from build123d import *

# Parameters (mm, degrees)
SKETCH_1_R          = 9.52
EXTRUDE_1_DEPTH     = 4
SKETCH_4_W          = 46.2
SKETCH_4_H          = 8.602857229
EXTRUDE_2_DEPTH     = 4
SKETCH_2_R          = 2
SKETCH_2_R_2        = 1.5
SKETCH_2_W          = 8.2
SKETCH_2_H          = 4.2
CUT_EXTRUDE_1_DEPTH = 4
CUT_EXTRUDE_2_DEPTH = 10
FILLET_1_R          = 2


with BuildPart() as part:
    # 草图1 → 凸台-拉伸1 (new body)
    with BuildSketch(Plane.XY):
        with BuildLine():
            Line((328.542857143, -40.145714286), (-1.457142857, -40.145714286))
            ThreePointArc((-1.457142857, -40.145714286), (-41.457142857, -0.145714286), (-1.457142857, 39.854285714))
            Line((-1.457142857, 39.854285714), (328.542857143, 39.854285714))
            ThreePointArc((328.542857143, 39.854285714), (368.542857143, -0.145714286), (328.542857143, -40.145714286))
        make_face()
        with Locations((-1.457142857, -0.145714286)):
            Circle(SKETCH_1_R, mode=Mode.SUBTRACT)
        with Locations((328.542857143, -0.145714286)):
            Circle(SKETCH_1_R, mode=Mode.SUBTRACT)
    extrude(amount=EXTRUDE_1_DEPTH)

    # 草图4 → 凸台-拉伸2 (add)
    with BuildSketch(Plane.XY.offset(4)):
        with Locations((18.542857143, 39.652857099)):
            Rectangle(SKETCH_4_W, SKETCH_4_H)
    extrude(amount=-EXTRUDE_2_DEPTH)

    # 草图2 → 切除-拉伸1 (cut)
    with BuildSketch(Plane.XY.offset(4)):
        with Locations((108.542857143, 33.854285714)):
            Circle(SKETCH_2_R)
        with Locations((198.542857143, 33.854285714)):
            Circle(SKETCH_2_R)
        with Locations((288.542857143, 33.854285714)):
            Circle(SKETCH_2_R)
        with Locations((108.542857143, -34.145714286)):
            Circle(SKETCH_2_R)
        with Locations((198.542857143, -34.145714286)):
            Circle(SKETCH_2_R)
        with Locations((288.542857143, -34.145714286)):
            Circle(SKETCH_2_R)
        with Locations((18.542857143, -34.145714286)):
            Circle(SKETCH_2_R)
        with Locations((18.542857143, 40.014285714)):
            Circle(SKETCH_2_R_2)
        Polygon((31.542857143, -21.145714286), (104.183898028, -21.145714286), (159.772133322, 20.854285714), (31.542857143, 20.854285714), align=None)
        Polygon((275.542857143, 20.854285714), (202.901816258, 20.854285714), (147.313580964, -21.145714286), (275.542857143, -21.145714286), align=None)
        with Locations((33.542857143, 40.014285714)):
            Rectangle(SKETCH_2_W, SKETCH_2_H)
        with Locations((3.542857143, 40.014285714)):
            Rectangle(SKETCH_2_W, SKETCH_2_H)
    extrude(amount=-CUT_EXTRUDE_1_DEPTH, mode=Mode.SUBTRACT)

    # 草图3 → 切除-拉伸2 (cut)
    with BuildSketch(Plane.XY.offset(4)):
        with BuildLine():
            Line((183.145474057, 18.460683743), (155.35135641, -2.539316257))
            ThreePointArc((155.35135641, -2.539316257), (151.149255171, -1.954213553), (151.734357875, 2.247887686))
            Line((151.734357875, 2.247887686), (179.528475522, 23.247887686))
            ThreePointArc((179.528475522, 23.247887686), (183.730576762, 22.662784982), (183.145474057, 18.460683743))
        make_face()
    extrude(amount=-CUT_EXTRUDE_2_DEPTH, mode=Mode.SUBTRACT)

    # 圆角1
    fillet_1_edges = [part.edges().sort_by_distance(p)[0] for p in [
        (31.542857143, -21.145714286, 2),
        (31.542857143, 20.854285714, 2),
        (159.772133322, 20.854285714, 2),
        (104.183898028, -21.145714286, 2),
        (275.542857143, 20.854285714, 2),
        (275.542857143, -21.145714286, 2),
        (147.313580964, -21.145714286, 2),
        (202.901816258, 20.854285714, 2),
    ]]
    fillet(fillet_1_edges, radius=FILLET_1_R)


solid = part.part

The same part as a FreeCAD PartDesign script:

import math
import FreeCAD as App
import Part
import Sketcher
Q = App.Units.Quantity


def edges_at(feature, points):
    """Names of the edges that pass closest to the given points."""
    edges = feature.Shape.Edges
    near = lambda p: min(range(len(edges)), key=lambda i: edges[i].distToShape(Part.Vertex(*p))[0])
    return sorted({f"Edge{near(p) + 1}" for p in points})

doc = App.newDocument("Part")
body = doc.addObject("PartDesign::Body", "Body")

# Sketch on XY plane
sketch1 = doc.addObject("Sketcher::SketchObject", "Sketch")
body.addObject(sketch1)
sketch1.AttachmentSupport = (doc.XY_Plane, [""])
sketch1.MapMode = "FlatFace"
sketch1.addGeometry([
    Part.LineSegment(App.Vector(-1.457143, -40.145714, 0), App.Vector(328.542857, -40.145714, 0)),  # 0
    Part.ArcOfCircle(Part.Circle(App.Vector(328.542857, -0.145714, 0), App.Vector(0, 0, 1), 40), math.radians(-90), math.radians(90)),  # 1
    Part.LineSegment(App.Vector(328.542857, 39.854286, 0), App.Vector(-1.457143, 39.854286, 0)),  # 2
    Part.ArcOfCircle(Part.Circle(App.Vector(-1.457143, -0.145714, 0), App.Vector(0, 0, 1), 40), math.radians(90), math.radians(270)),  # 3
    Part.Circle(App.Vector(328.542857, -0.145714, 0), App.Vector(0, 0, 1), 9.52),  # 4
    Part.Circle(App.Vector(-1.457143, -0.145714, 0), App.Vector(0, 0, 1), 9.52),  # 5
], False)
sketch1.addConstraint([
    Sketcher.Constraint("Tangent", 0, 2, 1, 1),
    Sketcher.Constraint("Tangent", 1, 2, 2, 1),
    Sketcher.Constraint("Tangent", 2, 2, 3, 1),
    Sketcher.Constraint("Tangent", 3, 2, 0, 1),
    Sketcher.Constraint("Horizontal", 0),
    Sketcher.Constraint("Horizontal", 2),
    Sketcher.Constraint("Coincident", 4, 3, 1, 3),
    Sketcher.Constraint("Coincident", 5, 3, 3, 3),
    Sketcher.Constraint("Equal", 4, 5),
    Sketcher.Constraint("Radius", 1, Q("40 mm")),
    Sketcher.Constraint("Diameter", 4, Q("19.04 mm")),
    Sketcher.Constraint("DistanceX", 0, 1, 0, 2, Q("330 mm")),
    Sketcher.Constraint("DistanceX", -1, 1, 1, 3, Q("328.542857 mm")),
    Sketcher.Constraint("DistanceY", 1, 3, -1, 1, Q("0.145714 mm")),
])
pad1 = doc.addObject("PartDesign::Pad", "Pad")
body.addObject(pad1)
pad1.Profile = sketch1
pad1.Length = 4

# Sketch on XY plane
sketch2 = doc.addObject("Sketcher::SketchObject", "Sketch001")
body.addObject(sketch2)
sketch2.AttachmentSupport = (doc.XY_Plane, [""])
sketch2.MapMode = "FlatFace"
sketch2.AttachmentOffset = App.Placement(App.Vector(0, 0, 4), App.Rotation())
sketch2.addGeometry([
    Part.LineSegment(App.Vector(-4.557143, 43.954286, 0), App.Vector(-4.557143, 35.351428, 0)),
    Part.LineSegment(App.Vector(-4.557143, 35.351428, 0), App.Vector(41.642857, 35.351428, 0)),
    Part.LineSegment(App.Vector(41.642857, 35.351428, 0), App.Vector(41.642857, 43.954286, 0)),
    Part.LineSegment(App.Vector(41.642857, 43.954286, 0), App.Vector(-4.557143, 43.954286, 0)),
], False)
sketch2.addConstraint([
    Sketcher.Constraint("Coincident", 0, 2, 1, 1),
    Sketcher.Constraint("Coincident", 1, 2, 2, 1),
    Sketcher.Constraint("Coincident", 2, 2, 3, 1),
    Sketcher.Constraint("Coincident", 3, 2, 0, 1),
    Sketcher.Constraint("Vertical", 0),
    Sketcher.Constraint("Horizontal", 1),
    Sketcher.Constraint("Vertical", 2),
    Sketcher.Constraint("Horizontal", 3),
    Sketcher.Constraint("DistanceX", 1, 1, 1, 2, Q("46.2 mm")),
    Sketcher.Constraint("DistanceY", 0, 2, 0, 1, Q("8.602857 mm")),
    Sketcher.Constraint("DistanceY", -1, 1, 0, 2, Q("35.351428 mm")),
    Sketcher.Constraint("DistanceX", 0, 2, -1, 1, Q("4.557143 mm")),
])
pad2 = doc.addObject("PartDesign::Pad", "Pad001")
body.addObject(pad2)
pad2.Profile = sketch2
pad2.Length = 4
pad2.Reversed = True

# Sketch on XY plane
sketch3 = doc.addObject("Sketcher::SketchObject", "Sketch002")
body.addObject(sketch3)
sketch3.AttachmentSupport = (doc.XY_Plane, [""])
sketch3.MapMode = "FlatFace"
sketch3.AttachmentOffset = App.Placement(App.Vector(0, 0, 4), App.Rotation())
sketch3.addGeometry([
    Part.Circle(App.Vector(108.542857, 33.854286, 0), App.Vector(0, 0, 1), 2),  # 0
    Part.Circle(App.Vector(198.542857, 33.854286, 0), App.Vector(0, 0, 1), 2),  # 1
    Part.Circle(App.Vector(288.542857, 33.854286, 0), App.Vector(0, 0, 1), 2),  # 2
    Part.Circle(App.Vector(108.542857, -34.145714, 0), App.Vector(0, 0, 1), 2),  # 3
    Part.Circle(App.Vector(198.542857, -34.145714, 0), App.Vector(0, 0, 1), 2),  # 4
    Part.Circle(App.Vector(288.542857, -34.145714, 0), App.Vector(0, 0, 1), 2),  # 5
    Part.Circle(App.Vector(18.542857, -34.145714, 0), App.Vector(0, 0, 1), 2),  # 6
    Part.Circle(App.Vector(18.542857, 40.014286, 0), App.Vector(0, 0, 1), 1.5),  # 7
    Part.LineSegment(App.Vector(31.542857, -21.145714, 0), App.Vector(104.183898, -21.145714, 0)),  # 8
    Part.LineSegment(App.Vector(104.183898, -21.145714, 0), App.Vector(159.772133, 20.854286, 0)),  # 9
    Part.LineSegment(App.Vector(159.772133, 20.854286, 0), App.Vector(31.542857, 20.854286, 0)),  # 10
    Part.LineSegment(App.Vector(31.542857, 20.854286, 0), App.Vector(31.542857, -21.145714, 0)),  # 11
    Part.LineSegment(App.Vector(275.542857, 20.854286, 0), App.Vector(202.901816, 20.854286, 0)),  # 12
    Part.LineSegment(App.Vector(202.901816, 20.854286, 0), App.Vector(147.313581, -21.145714, 0)),  # 13
    Part.LineSegment(App.Vector(147.313581, -21.145714, 0), App.Vector(275.542857, -21.145714, 0)),  # 14
    Part.LineSegment(App.Vector(275.542857, -21.145714, 0), App.Vector(275.542857, 20.854286, 0)),  # 15
    Part.LineSegment(App.Vector(29.442857, 42.114286, 0), App.Vector(29.442857, 37.914286, 0)),  # 16
    Part.LineSegment(App.Vector(29.442857, 37.914286, 0), App.Vector(37.642857, 37.914286, 0)),  # 17
    Part.LineSegment(App.Vector(37.642857, 37.914286, 0), App.Vector(37.642857, 42.114286, 0)),  # 18
    Part.LineSegment(App.Vector(37.642857, 42.114286, 0), App.Vector(29.442857, 42.114286, 0)),  # 19
    Part.LineSegment(App.Vector(-0.557143, 42.114286, 0), App.Vector(-0.557143, 37.914286, 0)),  # 20
    Part.LineSegment(App.Vector(-0.557143, 37.914286, 0), App.Vector(7.642857, 37.914286, 0)),  # 21
    Part.LineSegment(App.Vector(7.642857, 37.914286, 0), App.Vector(7.642857, 42.114286, 0)),  # 22
    Part.LineSegment(App.Vector(7.642857, 42.114286, 0), App.Vector(-0.557143, 42.114286, 0)),  # 23
], False)
sketch3.addConstraint([
    Sketcher.Constraint("Coincident", 8, 2, 9, 1),
    Sketcher.Constraint("Coincident", 9, 2, 10, 1),
    Sketcher.Constraint("Coincident", 10, 2, 11, 1),
    Sketcher.Constraint("Coincident", 11, 2, 8, 1),
    Sketcher.Constraint("Coincident", 12, 2, 13, 1),
    Sketcher.Constraint("Coincident", 13, 2, 14, 1),
    Sketcher.Constraint("Coincident", 14, 2, 15, 1),
    Sketcher.Constraint("Coincident", 15, 2, 12, 1),
    Sketcher.Constraint("Coincident", 16, 2, 17, 1),
    Sketcher.Constraint("Coincident", 17, 2, 18, 1),
    Sketcher.Constraint("Coincident", 18, 2, 19, 1),
    Sketcher.Constraint("Coincident", 19, 2, 16, 1),
    Sketcher.Constraint("Coincident", 20, 2, 21, 1),
    Sketcher.Constraint("Coincident", 21, 2, 22, 1),
    Sketcher.Constraint("Coincident", 22, 2, 23, 1),
    Sketcher.Constraint("Coincident", 23, 2, 20, 1),
    Sketcher.Constraint("Horizontal", 8),
    Sketcher.Constraint("Horizontal", 10),
    Sketcher.Constraint("Vertical", 11),
    Sketcher.Constraint("Horizontal", 12),
    Sketcher.Constraint("Horizontal", 14),
    Sketcher.Constraint("Vertical", 15),
    Sketcher.Constraint("Vertical", 16),
    Sketcher.Constraint("Horizontal", 17),
    Sketcher.Constraint("Vertical", 18),
    Sketcher.Constraint("Horizontal", 19),
    Sketcher.Constraint("Vertical", 20),
    Sketcher.Constraint("Horizontal", 21),
    Sketcher.Constraint("Vertical", 22),
    Sketcher.Constraint("Horizontal", 23),
    Sketcher.Constraint("Equal", 0, 1),
    Sketcher.Constraint("Equal", 1, 2),
    Sketcher.Constraint("Equal", 2, 3),
    Sketcher.Constraint("Equal", 3, 4),
    Sketcher.Constraint("Equal", 4, 5),
    Sketcher.Constraint("Equal", 5, 6),
    Sketcher.Constraint("Parallel", 9, 13),
    Sketcher.Constraint("Horizontal", 0, 3, 1, 3),
    Sketcher.Constraint("Horizontal", 1, 3, 2, 3),
    Sketcher.Constraint("Horizontal", 3, 3, 4, 3),
    Sketcher.Constraint("Horizontal", 4, 3, 5, 3),
    Sketcher.Constraint("Horizontal", 5, 3, 6, 3),
    Sketcher.Constraint("Horizontal", 10, 2, 12, 2),
    Sketcher.Constraint("Horizontal", 11, 2, 13, 2),
    Sketcher.Constraint("Horizontal", 17, 2, 20, 2),
    Sketcher.Constraint("Horizontal", 19, 2, 22, 2),
    Sketcher.Constraint("Vertical", 0, 3, 3, 3),
    Sketcher.Constraint("Vertical", 1, 3, 4, 3),
    Sketcher.Constraint("Vertical", 2, 3, 5, 3),
    Sketcher.Constraint("Vertical", 6, 3, 7, 3),
    Sketcher.Constraint("Equal", 8, 12),
    Sketcher.Constraint("Equal", 19, 21),
    Sketcher.Constraint("Diameter", 0, Q("4 mm")),
    Sketcher.Constraint("Diameter", 7, Q("3 mm")),
    Sketcher.Constraint("DistanceY", 11, 2, 11, 1, Q("42 mm")),
    Sketcher.Constraint("DistanceX", 17, 1, 17, 2, Q("8.2 mm")),
    Sketcher.Constraint("DistanceY", 16, 2, 16, 1, Q("4.2 mm")),
    Sketcher.Constraint("DistanceX", 0, 3, 1, 3, Q("90 mm")),
    Sketcher.Constraint("DistanceX", 1, 3, 2, 3, Q("90 mm")),
    Sketcher.Constraint("DistanceY", 3, 3, 0, 3, Q("68 mm")),
    Sketcher.Constraint("DistanceX", 6, 3, 3, 3, Q("90 mm")),
    Sketcher.Constraint("DistanceY", 3, 3, 8, 2, Q("13 mm")),
    Sketcher.Constraint("DistanceX", 7, 3, 10, 2, Q("13 mm")),
    Sketcher.Constraint("DistanceX", 14, 2, 5, 3, Q("13 mm")),
    Sketcher.Constraint("DistanceX", 20, 2, 16, 2, Q("30 mm")),
    Sketcher.Constraint("DistanceX", 7, 3, 16, 2, Q("10.9 mm")),
    Sketcher.Constraint("DistanceY", 16, 2, 7, 3, Q("2.1 mm")),
    Sketcher.Constraint("DistanceY", 6, 3, 7, 3, Q("74.16 mm")),
    Sketcher.Constraint("DistanceX", 8, 1, 8, 2, Q("72.641041 mm")),
    Sketcher.Constraint("DistanceX", -1, 1, 8, 2, Q("104.183898 mm")),
    Sketcher.Constraint("DistanceX", 10, 2, 10, 1, Q("128.229276 mm")),
    Sketcher.Constraint("DistanceY", -1, 1, 0, 3, Q("33.854286 mm")),
])
pocket1 = doc.addObject("PartDesign::Pocket", "Pocket")
body.addObject(pocket1)
pocket1.Profile = sketch3
pocket1.Length = 4

# Sketch on XY plane
sketch4 = doc.addObject("Sketcher::SketchObject", "Sketch003")
body.addObject(sketch4)
sketch4.AttachmentSupport = (doc.XY_Plane, [""])
sketch4.MapMode = "FlatFace"
sketch4.AttachmentOffset = App.Placement(App.Vector(0, 0, 4), App.Rotation())
sketch4.addGeometry([
    Part.LineSegment(App.Vector(155.351356, -2.539316, 0), App.Vector(183.145474, 18.460684, 0)),
    Part.ArcOfCircle(Part.Circle(App.Vector(181.336975, 20.854286, 0), App.Vector(0, 0, 1), 3), math.radians(-52.926927), math.radians(127.073073)),
    Part.LineSegment(App.Vector(179.528476, 23.247888, 0), App.Vector(151.734358, 2.247888, 0)),
    Part.ArcOfCircle(Part.Circle(App.Vector(153.542857, -0.145714, 0), App.Vector(0, 0, 1), 3), math.radians(127.073073), math.radians(307.073073)),
], False)
sketch4.addConstraint([
    Sketcher.Constraint("Tangent", 0, 2, 1, 1),
    Sketcher.Constraint("Tangent", 1, 2, 2, 1),
    Sketcher.Constraint("Tangent", 2, 2, 3, 1),
    Sketcher.Constraint("Tangent", 3, 2, 0, 1),
    Sketcher.Constraint("Equal", 1, 3),
    Sketcher.Constraint("Radius", 1, Q("3 mm")),
    Sketcher.Constraint("DistanceY", 3, 3, 1, 3, Q("21 mm")),
    Sketcher.Constraint("DistanceX", 1, 2, 0, 2, Q("3.616999 mm")),
    Sketcher.Constraint("DistanceX", -1, 1, 1, 3, Q("181.336975 mm")),
    Sketcher.Constraint("DistanceY", -1, 1, 1, 3, Q("20.854286 mm")),
])
pocket2 = doc.addObject("PartDesign::Pocket", "Pocket001")
body.addObject(pocket2)
pocket2.Profile = sketch4
pocket2.Length = 10
doc.recompute()

fillet = doc.addObject("PartDesign::Fillet", "Fillet")
body.addObject(fillet)
fillet.Base = (pocket2, edges_at(pocket2, [
    (31.543, -21.146, 2),
    (31.543, 20.854, 2),
    (159.772, 20.854, 2),
    (104.184, -21.146, 2),
    (275.543, 20.854, 2),
    (275.543, -21.146, 2),
    (147.314, -21.146, 2),
    (202.902, 20.854, 2),
]))
fillet.Radius = 2

doc.recompute()
